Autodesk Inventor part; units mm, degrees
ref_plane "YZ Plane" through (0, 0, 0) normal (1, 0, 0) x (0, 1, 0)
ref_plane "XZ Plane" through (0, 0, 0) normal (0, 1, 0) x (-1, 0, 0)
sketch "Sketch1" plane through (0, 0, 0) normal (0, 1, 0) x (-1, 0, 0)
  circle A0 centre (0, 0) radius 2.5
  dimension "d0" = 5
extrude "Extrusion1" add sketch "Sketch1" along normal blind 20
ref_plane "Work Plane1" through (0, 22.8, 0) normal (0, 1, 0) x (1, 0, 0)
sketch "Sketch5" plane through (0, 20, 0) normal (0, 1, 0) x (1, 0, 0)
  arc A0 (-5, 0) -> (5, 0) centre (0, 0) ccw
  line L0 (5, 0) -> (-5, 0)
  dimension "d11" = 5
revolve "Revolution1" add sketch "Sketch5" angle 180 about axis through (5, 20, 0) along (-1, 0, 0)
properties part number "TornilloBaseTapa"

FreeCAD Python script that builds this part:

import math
import FreeCAD as App
import Part
import Sketcher

doc = App.newDocument("Part")
body = doc.addObject("PartDesign::Body", "Body")

# Sketch on XZ plane
sketch1 = body.newObject("Sketcher::SketchObject", "Sketch")
sketch1.AttachmentSupport = (doc.getObject("XZ_Plane"), [""])
sketch1.MapMode = "FlatFace"
sketch1.addGeometry(Part.Circle(App.Vector(0, 0, 0), App.Vector(0, 0, 1), 2.5), False)
sketch1.addConstraint([
    Sketcher.Constraint("Coincident", 0, 3, -1, 1),
    Sketcher.Constraint("Diameter", 0, 5.0),
])
pad1 = body.newObject("PartDesign::Pad", "Pad")
pad1.Profile = sketch1
pad1.Length = 20
pad1.Reversed = True

# Sketch on XZ plane
sketch2 = body.newObject("Sketcher::SketchObject", "Sketch001")
sketch2.AttachmentSupport = (doc.getObject("XZ_Plane"), [""])
sketch2.MapMode = "FlatFace"
sketch2.AttachmentOffset = App.Placement(App.Vector(0, 0, -20), App.Rotation())
sketch2.addGeometry([
    Part.LineSegment(App.Vector(5, 0, 0), App.Vector(-5, 0, 0)),
    Part.ArcOfCircle(Part.Circle(App.Vector(0, 0, 0), App.Vector(0, 0, 1), 5), math.radians(0), math.radians(180)),
], False)
sketch2.addConstraint([
    Sketcher.Constraint("Coincident", 0, 1, 1, 1),
    Sketcher.Constraint("Coincident", 1, 2, 0, 2),
    Sketcher.Constraint("Horizontal", 0),
    Sketcher.Constraint("Coincident", 1, 3, -1, 1),
    Sketcher.Constraint("PointOnObject", 0, 1, -1),
    Sketcher.Constraint("Radius", 1, 5.0),
])
revolution = body.newObject("PartDesign::Revolution", "Revolution")
revolution.Profile = sketch2
revolution.ReferenceAxis = (sketch2, ["H_Axis"])
revolution.Angle = 180
revolution.Reversed = True

doc.recompute()
